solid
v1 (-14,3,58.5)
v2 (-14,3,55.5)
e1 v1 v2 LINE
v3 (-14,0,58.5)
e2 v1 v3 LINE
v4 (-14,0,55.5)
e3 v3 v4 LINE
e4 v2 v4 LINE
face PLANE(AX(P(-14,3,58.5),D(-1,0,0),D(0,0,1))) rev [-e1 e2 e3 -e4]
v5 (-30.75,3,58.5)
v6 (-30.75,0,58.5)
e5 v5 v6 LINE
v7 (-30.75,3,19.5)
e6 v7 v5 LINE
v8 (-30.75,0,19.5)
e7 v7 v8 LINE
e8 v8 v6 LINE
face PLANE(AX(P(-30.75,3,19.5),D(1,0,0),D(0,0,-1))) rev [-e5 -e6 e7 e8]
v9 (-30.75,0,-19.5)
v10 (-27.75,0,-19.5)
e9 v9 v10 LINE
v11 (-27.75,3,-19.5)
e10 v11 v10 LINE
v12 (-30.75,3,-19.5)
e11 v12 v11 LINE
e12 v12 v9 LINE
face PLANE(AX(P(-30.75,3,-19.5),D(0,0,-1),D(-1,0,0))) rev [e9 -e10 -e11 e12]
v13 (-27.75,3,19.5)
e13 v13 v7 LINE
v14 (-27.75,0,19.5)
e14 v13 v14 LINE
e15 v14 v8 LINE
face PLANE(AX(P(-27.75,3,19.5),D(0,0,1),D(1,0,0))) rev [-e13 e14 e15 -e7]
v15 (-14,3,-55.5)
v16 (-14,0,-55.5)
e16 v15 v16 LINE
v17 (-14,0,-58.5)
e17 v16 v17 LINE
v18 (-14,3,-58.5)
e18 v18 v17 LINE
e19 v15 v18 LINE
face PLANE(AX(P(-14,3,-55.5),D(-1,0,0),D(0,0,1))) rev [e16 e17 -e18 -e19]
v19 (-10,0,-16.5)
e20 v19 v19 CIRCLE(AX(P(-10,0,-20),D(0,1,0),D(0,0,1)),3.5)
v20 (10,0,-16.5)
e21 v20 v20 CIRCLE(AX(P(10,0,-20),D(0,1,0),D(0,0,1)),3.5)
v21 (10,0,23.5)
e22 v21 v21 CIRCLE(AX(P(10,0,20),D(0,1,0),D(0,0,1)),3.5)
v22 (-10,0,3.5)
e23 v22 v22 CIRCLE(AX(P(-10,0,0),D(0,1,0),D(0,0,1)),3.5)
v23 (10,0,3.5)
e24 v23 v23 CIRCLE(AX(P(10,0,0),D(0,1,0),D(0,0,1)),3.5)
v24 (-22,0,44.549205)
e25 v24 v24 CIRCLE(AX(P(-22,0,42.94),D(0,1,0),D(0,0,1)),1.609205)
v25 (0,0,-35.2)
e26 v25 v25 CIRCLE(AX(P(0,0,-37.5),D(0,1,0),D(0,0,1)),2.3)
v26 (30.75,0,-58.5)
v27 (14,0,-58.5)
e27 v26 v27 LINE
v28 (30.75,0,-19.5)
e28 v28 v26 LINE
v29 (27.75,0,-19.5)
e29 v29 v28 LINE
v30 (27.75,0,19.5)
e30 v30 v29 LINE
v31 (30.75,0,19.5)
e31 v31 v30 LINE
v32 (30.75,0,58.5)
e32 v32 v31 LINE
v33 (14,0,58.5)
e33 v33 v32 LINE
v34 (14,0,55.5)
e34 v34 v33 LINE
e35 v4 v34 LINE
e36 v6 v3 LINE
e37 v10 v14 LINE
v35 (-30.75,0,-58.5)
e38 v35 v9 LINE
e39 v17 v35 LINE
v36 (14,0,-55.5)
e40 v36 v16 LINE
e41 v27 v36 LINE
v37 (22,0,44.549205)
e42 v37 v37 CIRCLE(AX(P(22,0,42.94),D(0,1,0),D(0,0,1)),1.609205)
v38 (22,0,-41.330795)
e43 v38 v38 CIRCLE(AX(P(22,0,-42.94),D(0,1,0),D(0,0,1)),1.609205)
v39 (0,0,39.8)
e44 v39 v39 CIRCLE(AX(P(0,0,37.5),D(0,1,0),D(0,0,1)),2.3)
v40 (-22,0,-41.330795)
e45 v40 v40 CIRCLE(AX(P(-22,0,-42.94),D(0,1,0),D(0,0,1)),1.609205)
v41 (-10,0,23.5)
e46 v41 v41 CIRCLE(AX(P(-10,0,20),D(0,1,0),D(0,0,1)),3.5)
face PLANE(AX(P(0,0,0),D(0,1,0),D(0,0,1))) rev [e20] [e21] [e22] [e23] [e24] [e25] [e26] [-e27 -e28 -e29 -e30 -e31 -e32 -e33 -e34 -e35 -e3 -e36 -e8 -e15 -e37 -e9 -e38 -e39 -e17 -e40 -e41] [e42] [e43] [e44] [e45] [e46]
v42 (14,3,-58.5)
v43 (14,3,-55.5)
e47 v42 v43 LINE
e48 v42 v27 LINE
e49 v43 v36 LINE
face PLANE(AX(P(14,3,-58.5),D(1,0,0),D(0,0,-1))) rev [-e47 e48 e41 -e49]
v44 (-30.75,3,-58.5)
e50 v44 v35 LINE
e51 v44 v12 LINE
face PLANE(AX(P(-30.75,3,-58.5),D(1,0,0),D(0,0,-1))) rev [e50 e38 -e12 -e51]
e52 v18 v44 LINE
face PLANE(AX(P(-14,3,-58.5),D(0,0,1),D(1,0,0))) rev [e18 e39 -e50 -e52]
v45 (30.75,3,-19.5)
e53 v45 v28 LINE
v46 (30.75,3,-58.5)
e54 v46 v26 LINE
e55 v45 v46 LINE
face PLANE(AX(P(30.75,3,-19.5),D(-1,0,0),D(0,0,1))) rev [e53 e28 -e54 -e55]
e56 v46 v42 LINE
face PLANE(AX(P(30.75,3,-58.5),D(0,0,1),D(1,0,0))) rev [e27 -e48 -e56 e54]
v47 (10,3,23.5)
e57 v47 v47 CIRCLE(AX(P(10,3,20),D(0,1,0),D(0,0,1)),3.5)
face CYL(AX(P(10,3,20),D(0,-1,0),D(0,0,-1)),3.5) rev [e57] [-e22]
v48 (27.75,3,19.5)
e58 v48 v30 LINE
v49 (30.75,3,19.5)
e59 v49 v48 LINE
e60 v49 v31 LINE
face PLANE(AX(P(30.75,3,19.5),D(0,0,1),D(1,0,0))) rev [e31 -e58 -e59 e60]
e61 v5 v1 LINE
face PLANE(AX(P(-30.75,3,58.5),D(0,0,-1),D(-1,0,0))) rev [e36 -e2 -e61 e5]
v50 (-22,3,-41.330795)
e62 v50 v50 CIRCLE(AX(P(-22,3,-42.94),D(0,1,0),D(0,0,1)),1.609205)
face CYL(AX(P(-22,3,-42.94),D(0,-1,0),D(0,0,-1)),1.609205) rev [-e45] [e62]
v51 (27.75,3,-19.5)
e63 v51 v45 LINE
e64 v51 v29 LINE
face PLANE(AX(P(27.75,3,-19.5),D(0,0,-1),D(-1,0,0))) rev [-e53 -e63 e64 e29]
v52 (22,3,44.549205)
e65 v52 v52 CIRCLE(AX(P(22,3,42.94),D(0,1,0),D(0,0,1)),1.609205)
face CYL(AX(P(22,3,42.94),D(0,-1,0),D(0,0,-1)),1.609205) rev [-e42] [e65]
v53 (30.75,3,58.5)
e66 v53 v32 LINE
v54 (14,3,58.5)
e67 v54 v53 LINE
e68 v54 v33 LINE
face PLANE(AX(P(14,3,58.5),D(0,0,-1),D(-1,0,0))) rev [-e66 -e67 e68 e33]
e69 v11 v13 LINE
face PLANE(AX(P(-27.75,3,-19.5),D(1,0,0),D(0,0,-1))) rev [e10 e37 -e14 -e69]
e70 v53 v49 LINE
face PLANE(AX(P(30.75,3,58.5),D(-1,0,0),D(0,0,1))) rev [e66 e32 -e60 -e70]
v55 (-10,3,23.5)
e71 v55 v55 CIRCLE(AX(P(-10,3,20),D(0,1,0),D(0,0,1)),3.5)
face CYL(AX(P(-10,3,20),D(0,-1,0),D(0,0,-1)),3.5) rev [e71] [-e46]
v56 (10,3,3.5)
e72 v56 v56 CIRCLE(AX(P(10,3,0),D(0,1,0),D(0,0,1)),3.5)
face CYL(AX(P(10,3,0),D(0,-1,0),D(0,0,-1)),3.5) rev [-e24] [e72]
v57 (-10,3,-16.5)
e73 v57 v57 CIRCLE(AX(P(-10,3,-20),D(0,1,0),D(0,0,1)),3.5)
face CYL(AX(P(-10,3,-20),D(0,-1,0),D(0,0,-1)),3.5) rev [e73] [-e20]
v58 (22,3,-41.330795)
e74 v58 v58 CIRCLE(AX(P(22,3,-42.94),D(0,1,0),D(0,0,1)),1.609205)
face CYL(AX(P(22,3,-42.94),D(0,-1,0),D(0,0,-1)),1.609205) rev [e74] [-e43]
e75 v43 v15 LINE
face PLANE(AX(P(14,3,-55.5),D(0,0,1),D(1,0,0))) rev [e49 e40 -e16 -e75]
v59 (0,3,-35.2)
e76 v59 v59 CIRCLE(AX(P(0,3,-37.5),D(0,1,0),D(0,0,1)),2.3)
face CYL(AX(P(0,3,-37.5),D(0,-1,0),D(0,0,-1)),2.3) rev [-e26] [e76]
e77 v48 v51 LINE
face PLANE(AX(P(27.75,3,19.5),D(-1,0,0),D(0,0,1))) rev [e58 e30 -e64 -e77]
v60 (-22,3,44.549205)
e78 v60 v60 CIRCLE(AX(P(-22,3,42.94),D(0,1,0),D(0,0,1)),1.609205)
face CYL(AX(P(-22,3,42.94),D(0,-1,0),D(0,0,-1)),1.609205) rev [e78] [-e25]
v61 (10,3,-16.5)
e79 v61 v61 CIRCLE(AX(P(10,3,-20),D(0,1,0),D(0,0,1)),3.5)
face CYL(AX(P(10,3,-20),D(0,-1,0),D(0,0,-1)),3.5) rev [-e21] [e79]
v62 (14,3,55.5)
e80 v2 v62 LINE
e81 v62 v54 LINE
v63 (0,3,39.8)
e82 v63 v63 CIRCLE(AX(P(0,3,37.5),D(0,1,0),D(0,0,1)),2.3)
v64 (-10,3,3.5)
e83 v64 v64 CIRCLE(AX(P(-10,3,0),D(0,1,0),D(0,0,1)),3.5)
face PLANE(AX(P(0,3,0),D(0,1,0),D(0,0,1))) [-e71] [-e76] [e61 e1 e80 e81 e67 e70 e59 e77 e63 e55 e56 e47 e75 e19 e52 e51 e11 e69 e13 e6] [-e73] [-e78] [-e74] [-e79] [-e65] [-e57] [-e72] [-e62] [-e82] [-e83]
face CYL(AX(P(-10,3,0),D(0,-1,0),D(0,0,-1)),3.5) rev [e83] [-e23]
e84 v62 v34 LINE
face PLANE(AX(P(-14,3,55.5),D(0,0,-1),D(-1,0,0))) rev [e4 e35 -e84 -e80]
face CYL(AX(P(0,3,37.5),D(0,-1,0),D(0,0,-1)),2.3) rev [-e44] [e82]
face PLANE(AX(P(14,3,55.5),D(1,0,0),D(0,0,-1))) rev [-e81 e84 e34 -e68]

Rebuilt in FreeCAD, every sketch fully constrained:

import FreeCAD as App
import Part
import Sketcher
from FreeCAD import Vector

doc = App.newDocument("Part")
body = doc.addObject("PartDesign::Body", "Body")

# Sketch on XZ plane
sketch1 = doc.addObject("Sketcher::SketchObject", "Sketch")
body.addObject(sketch1)
sketch1.AttachmentSupport = (doc.XZ_Plane, [""])
sketch1.MapMode = "FlatFace"
sketch1.addGeometry(Part.LineSegment(Vector(-30.75, -58.5, 0), Vector(-30.75, -19.5, 0)), False)
sketch1.addGeometry(Part.LineSegment(Vector(-30.75, -19.5, 0), Vector(-27.75, -19.5, 0)), False)
sketch1.addGeometry(Part.LineSegment(Vector(-27.75, -19.5, 0), Vector(-27.75, 19.5, 0)), False)
sketch1.addGeometry(Part.LineSegment(Vector(-27.75, 19.5, 0), Vector(-30.75, 19.5, 0)), False)
sketch1.addGeometry(Part.LineSegment(Vector(-30.75, 19.5, 0), Vector(-30.75, 58.5, 0)), False)
sketch1.addGeometry(Part.LineSegment(Vector(-30.75, 58.5, 0), Vector(-14, 58.5, 0)), False)
sketch1.addGeometry(Part.LineSegment(Vector(-14, 58.5, 0), Vector(-14, 55.5, 0)), False)
sketch1.addGeometry(Part.LineSegment(Vector(-14, 55.5, 0), Vector(14, 55.5, 0)), False)
sketch1.addGeometry(Part.LineSegment(Vector(14, 55.5, 0), Vector(14, 58.5, 0)), False)
sketch1.addGeometry(Part.LineSegment(Vector(14, 58.5, 0), Vector(30.75, 58.5, 0)), False)
sketch1.addGeometry(Part.LineSegment(Vector(30.75, 58.5, 0), Vector(30.75, 19.5, 0)), False)
sketch1.addGeometry(Part.LineSegment(Vector(30.75, 19.5, 0), Vector(27.75, 19.5, 0)), False)
sketch1.addGeometry(Part.LineSegment(Vector(27.75, 19.5, 0), Vector(27.75, -19.5, 0)), False)
sketch1.addGeometry(Part.LineSegment(Vector(27.75, -19.5, 0), Vector(30.75, -19.5, 0)), False)
sketch1.addGeometry(Part.LineSegment(Vector(30.75, -19.5, 0), Vector(30.75, -58.5, 0)), False)
sketch1.addGeometry(Part.LineSegment(Vector(30.75, -58.5, 0), Vector(14, -58.5, 0)), False)
sketch1.addGeometry(Part.LineSegment(Vector(14, -58.5, 0), Vector(14, -55.5, 0)), False)
sketch1.addGeometry(Part.LineSegment(Vector(14, -55.5, 0), Vector(-14, -55.5, 0)), False)
sketch1.addGeometry(Part.LineSegment(Vector(-14, -55.5, 0), Vector(-14, -58.5, 0)), False)
sketch1.addGeometry(Part.LineSegment(Vector(-14, -58.5, 0), Vector(-30.75, -58.5, 0)), False)
sketch1.addGeometry(Part.Circle(Vector(-22, 42.94, 0), Vector(0, 0, 1), 1.609205), False)
sketch1.addGeometry(Part.Circle(Vector(0, 37.5, 0), Vector(0, 0, 1), 2.3), False)
sketch1.addGeometry(Part.Circle(Vector(-10, 20, 0), Vector(0, 0, 1), 3.5), False)
sketch1.addGeometry(Part.Circle(Vector(22, 42.94, 0), Vector(0, 0, 1), 1.609205), False)
sketch1.addGeometry(Part.Circle(Vector(10, 20, 0), Vector(0, 0, 1), 3.5), False)
sketch1.addGeometry(Part.Circle(Vector(-10, 0, 0), Vector(0, 0, 1), 3.5), False)
sketch1.addGeometry(Part.Circle(Vector(-10, -20, 0), Vector(0, 0, 1), 3.5), False)
sketch1.addGeometry(Part.Circle(Vector(-22, -42.94, 0), Vector(0, 0, 1), 1.609205), False)
sketch1.addGeometry(Part.Circle(Vector(0, -37.5, 0), Vector(0, 0, 1), 2.3), False)
sketch1.addGeometry(Part.Circle(Vector(10, 0, 0), Vector(0, 0, 1), 3.5), False)
sketch1.addGeometry(Part.Circle(Vector(10, -20, 0), Vector(0, 0, 1), 3.5), False)
sketch1.addGeometry(Part.Circle(Vector(22, -42.94, 0), Vector(0, 0, 1), 1.609205), False)
sketch1.addConstraint(Sketcher.Constraint("Coincident", 0, 2, 1, 1))
sketch1.addConstraint(Sketcher.Constraint("Coincident", 1, 2, 2, 1))
sketch1.addConstraint(Sketcher.Constraint("Coincident", 2, 2, 3, 1))
sketch1.addConstraint(Sketcher.Constraint("Coincident", 3, 2, 4, 1))
sketch1.addConstraint(Sketcher.Constraint("Coincident", 4, 2, 5, 1))
sketch1.addConstraint(Sketcher.Constraint("Coincident", 5, 2, 6, 1))
sketch1.addConstraint(Sketcher.Constraint("Coincident", 6, 2, 7, 1))
sketch1.addConstraint(Sketcher.Constraint("Coincident", 7, 2, 8, 1))
sketch1.addConstraint(Sketcher.Constraint("Coincident", 8, 2, 9, 1))
sketch1.addConstraint(Sketcher.Constraint("Coincident", 9, 2, 10, 1))
sketch1.addConstraint(Sketcher.Constraint("Coincident", 10, 2, 11, 1))
sketch1.addConstraint(Sketcher.Constraint("Coincident", 11, 2, 12, 1))
sketch1.addConstraint(Sketcher.Constraint("Coincident", 12, 2, 13, 1))
sketch1.addConstraint(Sketcher.Constraint("Coincident", 13, 2, 14, 1))
sketch1.addConstraint(Sketcher.Constraint("Coincident", 14, 2, 15, 1))
sketch1.addConstraint(Sketcher.Constraint("Coincident", 15, 2, 16, 1))
sketch1.addConstraint(Sketcher.Constraint("Coincident", 16, 2, 17, 1))
sketch1.addConstraint(Sketcher.Constraint("Coincident", 17, 2, 18, 1))
sketch1.addConstraint(Sketcher.Constraint("Coincident", 18, 2, 19, 1))
sketch1.addConstraint(Sketcher.Constraint("Coincident", 19, 2, 0, 1))
sketch1.addConstraint(Sketcher.Constraint("Vertical", 0))
sketch1.addConstraint(Sketcher.Constraint("Horizontal", 1))
sketch1.addConstraint(Sketcher.Constraint("Vertical", 2))
sketch1.addConstraint(Sketcher.Constraint("Horizontal", 3))
sketch1.addConstraint(Sketcher.Constraint("Vertical", 4))
sketch1.addConstraint(Sketcher.Constraint("Horizontal", 5))
sketch1.addConstraint(Sketcher.Constraint("Vertical", 6))
sketch1.addConstraint(Sketcher.Constraint("Horizontal", 7))
sketch1.addConstraint(Sketcher.Constraint("Vertical", 8))
sketch1.addConstraint(Sketcher.Constraint("Horizontal", 9))
sketch1.addConstraint(Sketcher.Constraint("Vertical", 10))
sketch1.addConstraint(Sketcher.Constraint("Horizontal", 11))
sketch1.addConstraint(Sketcher.Constraint("Vertical", 12))
sketch1.addConstraint(Sketcher.Constraint("Horizontal", 13))
sketch1.addConstraint(Sketcher.Constraint("Vertical", 14))
sketch1.addConstraint(Sketcher.Constraint("Horizontal", 15))
sketch1.addConstraint(Sketcher.Constraint("Vertical", 16))
sketch1.addConstraint(Sketcher.Constraint("Horizontal", 17))
sketch1.addConstraint(Sketcher.Constraint("Vertical", 18))
sketch1.addConstraint(Sketcher.Constraint("Horizontal", 19))
sketch1.addConstraint(Sketcher.Constraint("Equal", 20, 23))
sketch1.addConstraint(Sketcher.Constraint("Equal", 22, 24))
sketch1.addConstraint(Sketcher.Constraint("Equal", 24, 25))
sketch1.addConstraint(Sketcher.Constraint("Equal", 25, 26))
sketch1.addConstraint(Sketcher.Constraint("Equal", 23, 27))
sketch1.addConstraint(Sketcher.Constraint("Equal", 21, 28))
sketch1.addConstraint(Sketcher.Constraint("Equal", 26, 29))
sketch1.addConstraint(Sketcher.Constraint("Equal", 29, 30))
sketch1.addConstraint(Sketcher.Constraint("Equal", 27, 31))
sketch1.addConstraint(Sketcher.Constraint("Symmetric", 24, 3, 26, 3, -1, 1))
sketch1.addConstraint(Sketcher.Constraint("Symmetric", 23, 3, 27, 3, -1, 1))
sketch1.addConstraint(Sketcher.Constraint("Symmetric", 21, 3, 28, 3, -1, 1))
sketch1.addConstraint(Sketcher.Constraint("Symmetric", 25, 3, 29, 3, -1, 1))
sketch1.addConstraint(Sketcher.Constraint("Symmetric", 22, 3, 30, 3, -1, 1))
sketch1.addConstraint(Sketcher.Constraint("Symmetric", 20, 3, 31, 3, -1, 1))
sketch1.addConstraint(Sketcher.Constraint("Symmetric", 0, 2, 10, 2, -1, 1))
sketch1.addConstraint(Sketcher.Constraint("Symmetric", 2, 2, 12, 2, -1, 1))
sketch1.addConstraint(Sketcher.Constraint("Symmetric", 4, 2, 14, 2, -1, 1))
sketch1.addConstraint(Sketcher.Constraint("Symmetric", 6, 2, 16, 2, -1, 1))
sketch1.addConstraint(Sketcher.Constraint("Symmetric", 8, 2, 18, 2, -1, 1))
sketch1.addConstraint(Sketcher.Constraint("Symmetric", 20, 3, 23, 3, -2))
sketch1.addConstraint(Sketcher.Constraint("Symmetric", 22, 3, 24, 3, -2))
sketch1.addConstraint(Sketcher.Constraint("Symmetric", 5, 2, 8, 2, -2))
sketch1.addConstraint(Sketcher.Constraint("Symmetric", 3, 2, 10, 2, -2))
sketch1.addConstraint(Sketcher.Constraint("PointOnObject", 21, 3, -2))
sketch1.addConstraint(Sketcher.Constraint("PointOnObject", 25, 3, -1))
sketch1.addConstraint(Sketcher.Constraint("Vertical", 22, 3, 25, 3))
sketch1.addConstraint(Sketcher.Constraint("Equal", 0, 2))
sketch1.addConstraint(Sketcher.Constraint("Equal", 13, 6))
sketch1.addConstraint(Sketcher.Constraint("Diameter", 22, 7.0))
sketch1.addConstraint(Sketcher.Constraint("Diameter", 21, 4.6))
sketch1.addConstraint(Sketcher.Constraint("DistanceX", 1, 1, 1, 2, 3.0))
sketch1.addConstraint(Sketcher.Constraint("DistanceX", 7, 1, 7, 2, 28.0))
sketch1.addConstraint(Sketcher.Constraint("DistanceY", 0, 1, 0, 2, 39.0))
sketch1.addConstraint(Sketcher.Constraint("DistanceX", 20, 3, -1, 1, 22.0))
sketch1.addConstraint(Sketcher.Constraint("DistanceX", 22, 3, -1, 1, 10.0))
sketch1.addConstraint(Sketcher.Constraint("DistanceY", -1, 1, 22, 3, 20.0))
sketch1.addConstraint(Sketcher.Constraint("DistanceY", 28, 3, 0, 2, 18.0))
sketch1.addConstraint(Sketcher.Constraint("DistanceX", 5, 1, 5, 2, 16.75))
sketch1.addConstraint(Sketcher.Constraint("Diameter", 20, 3.21841))
sketch1.addConstraint(Sketcher.Constraint("DistanceY", -1, 1, 20, 3, 42.94))
pad1 = doc.addObject("PartDesign::Pad", "Pad")
body.addObject(pad1)
pad1.Profile = sketch1
pad1.Length = 3
pad1.Reversed = True

doc.recompute()
